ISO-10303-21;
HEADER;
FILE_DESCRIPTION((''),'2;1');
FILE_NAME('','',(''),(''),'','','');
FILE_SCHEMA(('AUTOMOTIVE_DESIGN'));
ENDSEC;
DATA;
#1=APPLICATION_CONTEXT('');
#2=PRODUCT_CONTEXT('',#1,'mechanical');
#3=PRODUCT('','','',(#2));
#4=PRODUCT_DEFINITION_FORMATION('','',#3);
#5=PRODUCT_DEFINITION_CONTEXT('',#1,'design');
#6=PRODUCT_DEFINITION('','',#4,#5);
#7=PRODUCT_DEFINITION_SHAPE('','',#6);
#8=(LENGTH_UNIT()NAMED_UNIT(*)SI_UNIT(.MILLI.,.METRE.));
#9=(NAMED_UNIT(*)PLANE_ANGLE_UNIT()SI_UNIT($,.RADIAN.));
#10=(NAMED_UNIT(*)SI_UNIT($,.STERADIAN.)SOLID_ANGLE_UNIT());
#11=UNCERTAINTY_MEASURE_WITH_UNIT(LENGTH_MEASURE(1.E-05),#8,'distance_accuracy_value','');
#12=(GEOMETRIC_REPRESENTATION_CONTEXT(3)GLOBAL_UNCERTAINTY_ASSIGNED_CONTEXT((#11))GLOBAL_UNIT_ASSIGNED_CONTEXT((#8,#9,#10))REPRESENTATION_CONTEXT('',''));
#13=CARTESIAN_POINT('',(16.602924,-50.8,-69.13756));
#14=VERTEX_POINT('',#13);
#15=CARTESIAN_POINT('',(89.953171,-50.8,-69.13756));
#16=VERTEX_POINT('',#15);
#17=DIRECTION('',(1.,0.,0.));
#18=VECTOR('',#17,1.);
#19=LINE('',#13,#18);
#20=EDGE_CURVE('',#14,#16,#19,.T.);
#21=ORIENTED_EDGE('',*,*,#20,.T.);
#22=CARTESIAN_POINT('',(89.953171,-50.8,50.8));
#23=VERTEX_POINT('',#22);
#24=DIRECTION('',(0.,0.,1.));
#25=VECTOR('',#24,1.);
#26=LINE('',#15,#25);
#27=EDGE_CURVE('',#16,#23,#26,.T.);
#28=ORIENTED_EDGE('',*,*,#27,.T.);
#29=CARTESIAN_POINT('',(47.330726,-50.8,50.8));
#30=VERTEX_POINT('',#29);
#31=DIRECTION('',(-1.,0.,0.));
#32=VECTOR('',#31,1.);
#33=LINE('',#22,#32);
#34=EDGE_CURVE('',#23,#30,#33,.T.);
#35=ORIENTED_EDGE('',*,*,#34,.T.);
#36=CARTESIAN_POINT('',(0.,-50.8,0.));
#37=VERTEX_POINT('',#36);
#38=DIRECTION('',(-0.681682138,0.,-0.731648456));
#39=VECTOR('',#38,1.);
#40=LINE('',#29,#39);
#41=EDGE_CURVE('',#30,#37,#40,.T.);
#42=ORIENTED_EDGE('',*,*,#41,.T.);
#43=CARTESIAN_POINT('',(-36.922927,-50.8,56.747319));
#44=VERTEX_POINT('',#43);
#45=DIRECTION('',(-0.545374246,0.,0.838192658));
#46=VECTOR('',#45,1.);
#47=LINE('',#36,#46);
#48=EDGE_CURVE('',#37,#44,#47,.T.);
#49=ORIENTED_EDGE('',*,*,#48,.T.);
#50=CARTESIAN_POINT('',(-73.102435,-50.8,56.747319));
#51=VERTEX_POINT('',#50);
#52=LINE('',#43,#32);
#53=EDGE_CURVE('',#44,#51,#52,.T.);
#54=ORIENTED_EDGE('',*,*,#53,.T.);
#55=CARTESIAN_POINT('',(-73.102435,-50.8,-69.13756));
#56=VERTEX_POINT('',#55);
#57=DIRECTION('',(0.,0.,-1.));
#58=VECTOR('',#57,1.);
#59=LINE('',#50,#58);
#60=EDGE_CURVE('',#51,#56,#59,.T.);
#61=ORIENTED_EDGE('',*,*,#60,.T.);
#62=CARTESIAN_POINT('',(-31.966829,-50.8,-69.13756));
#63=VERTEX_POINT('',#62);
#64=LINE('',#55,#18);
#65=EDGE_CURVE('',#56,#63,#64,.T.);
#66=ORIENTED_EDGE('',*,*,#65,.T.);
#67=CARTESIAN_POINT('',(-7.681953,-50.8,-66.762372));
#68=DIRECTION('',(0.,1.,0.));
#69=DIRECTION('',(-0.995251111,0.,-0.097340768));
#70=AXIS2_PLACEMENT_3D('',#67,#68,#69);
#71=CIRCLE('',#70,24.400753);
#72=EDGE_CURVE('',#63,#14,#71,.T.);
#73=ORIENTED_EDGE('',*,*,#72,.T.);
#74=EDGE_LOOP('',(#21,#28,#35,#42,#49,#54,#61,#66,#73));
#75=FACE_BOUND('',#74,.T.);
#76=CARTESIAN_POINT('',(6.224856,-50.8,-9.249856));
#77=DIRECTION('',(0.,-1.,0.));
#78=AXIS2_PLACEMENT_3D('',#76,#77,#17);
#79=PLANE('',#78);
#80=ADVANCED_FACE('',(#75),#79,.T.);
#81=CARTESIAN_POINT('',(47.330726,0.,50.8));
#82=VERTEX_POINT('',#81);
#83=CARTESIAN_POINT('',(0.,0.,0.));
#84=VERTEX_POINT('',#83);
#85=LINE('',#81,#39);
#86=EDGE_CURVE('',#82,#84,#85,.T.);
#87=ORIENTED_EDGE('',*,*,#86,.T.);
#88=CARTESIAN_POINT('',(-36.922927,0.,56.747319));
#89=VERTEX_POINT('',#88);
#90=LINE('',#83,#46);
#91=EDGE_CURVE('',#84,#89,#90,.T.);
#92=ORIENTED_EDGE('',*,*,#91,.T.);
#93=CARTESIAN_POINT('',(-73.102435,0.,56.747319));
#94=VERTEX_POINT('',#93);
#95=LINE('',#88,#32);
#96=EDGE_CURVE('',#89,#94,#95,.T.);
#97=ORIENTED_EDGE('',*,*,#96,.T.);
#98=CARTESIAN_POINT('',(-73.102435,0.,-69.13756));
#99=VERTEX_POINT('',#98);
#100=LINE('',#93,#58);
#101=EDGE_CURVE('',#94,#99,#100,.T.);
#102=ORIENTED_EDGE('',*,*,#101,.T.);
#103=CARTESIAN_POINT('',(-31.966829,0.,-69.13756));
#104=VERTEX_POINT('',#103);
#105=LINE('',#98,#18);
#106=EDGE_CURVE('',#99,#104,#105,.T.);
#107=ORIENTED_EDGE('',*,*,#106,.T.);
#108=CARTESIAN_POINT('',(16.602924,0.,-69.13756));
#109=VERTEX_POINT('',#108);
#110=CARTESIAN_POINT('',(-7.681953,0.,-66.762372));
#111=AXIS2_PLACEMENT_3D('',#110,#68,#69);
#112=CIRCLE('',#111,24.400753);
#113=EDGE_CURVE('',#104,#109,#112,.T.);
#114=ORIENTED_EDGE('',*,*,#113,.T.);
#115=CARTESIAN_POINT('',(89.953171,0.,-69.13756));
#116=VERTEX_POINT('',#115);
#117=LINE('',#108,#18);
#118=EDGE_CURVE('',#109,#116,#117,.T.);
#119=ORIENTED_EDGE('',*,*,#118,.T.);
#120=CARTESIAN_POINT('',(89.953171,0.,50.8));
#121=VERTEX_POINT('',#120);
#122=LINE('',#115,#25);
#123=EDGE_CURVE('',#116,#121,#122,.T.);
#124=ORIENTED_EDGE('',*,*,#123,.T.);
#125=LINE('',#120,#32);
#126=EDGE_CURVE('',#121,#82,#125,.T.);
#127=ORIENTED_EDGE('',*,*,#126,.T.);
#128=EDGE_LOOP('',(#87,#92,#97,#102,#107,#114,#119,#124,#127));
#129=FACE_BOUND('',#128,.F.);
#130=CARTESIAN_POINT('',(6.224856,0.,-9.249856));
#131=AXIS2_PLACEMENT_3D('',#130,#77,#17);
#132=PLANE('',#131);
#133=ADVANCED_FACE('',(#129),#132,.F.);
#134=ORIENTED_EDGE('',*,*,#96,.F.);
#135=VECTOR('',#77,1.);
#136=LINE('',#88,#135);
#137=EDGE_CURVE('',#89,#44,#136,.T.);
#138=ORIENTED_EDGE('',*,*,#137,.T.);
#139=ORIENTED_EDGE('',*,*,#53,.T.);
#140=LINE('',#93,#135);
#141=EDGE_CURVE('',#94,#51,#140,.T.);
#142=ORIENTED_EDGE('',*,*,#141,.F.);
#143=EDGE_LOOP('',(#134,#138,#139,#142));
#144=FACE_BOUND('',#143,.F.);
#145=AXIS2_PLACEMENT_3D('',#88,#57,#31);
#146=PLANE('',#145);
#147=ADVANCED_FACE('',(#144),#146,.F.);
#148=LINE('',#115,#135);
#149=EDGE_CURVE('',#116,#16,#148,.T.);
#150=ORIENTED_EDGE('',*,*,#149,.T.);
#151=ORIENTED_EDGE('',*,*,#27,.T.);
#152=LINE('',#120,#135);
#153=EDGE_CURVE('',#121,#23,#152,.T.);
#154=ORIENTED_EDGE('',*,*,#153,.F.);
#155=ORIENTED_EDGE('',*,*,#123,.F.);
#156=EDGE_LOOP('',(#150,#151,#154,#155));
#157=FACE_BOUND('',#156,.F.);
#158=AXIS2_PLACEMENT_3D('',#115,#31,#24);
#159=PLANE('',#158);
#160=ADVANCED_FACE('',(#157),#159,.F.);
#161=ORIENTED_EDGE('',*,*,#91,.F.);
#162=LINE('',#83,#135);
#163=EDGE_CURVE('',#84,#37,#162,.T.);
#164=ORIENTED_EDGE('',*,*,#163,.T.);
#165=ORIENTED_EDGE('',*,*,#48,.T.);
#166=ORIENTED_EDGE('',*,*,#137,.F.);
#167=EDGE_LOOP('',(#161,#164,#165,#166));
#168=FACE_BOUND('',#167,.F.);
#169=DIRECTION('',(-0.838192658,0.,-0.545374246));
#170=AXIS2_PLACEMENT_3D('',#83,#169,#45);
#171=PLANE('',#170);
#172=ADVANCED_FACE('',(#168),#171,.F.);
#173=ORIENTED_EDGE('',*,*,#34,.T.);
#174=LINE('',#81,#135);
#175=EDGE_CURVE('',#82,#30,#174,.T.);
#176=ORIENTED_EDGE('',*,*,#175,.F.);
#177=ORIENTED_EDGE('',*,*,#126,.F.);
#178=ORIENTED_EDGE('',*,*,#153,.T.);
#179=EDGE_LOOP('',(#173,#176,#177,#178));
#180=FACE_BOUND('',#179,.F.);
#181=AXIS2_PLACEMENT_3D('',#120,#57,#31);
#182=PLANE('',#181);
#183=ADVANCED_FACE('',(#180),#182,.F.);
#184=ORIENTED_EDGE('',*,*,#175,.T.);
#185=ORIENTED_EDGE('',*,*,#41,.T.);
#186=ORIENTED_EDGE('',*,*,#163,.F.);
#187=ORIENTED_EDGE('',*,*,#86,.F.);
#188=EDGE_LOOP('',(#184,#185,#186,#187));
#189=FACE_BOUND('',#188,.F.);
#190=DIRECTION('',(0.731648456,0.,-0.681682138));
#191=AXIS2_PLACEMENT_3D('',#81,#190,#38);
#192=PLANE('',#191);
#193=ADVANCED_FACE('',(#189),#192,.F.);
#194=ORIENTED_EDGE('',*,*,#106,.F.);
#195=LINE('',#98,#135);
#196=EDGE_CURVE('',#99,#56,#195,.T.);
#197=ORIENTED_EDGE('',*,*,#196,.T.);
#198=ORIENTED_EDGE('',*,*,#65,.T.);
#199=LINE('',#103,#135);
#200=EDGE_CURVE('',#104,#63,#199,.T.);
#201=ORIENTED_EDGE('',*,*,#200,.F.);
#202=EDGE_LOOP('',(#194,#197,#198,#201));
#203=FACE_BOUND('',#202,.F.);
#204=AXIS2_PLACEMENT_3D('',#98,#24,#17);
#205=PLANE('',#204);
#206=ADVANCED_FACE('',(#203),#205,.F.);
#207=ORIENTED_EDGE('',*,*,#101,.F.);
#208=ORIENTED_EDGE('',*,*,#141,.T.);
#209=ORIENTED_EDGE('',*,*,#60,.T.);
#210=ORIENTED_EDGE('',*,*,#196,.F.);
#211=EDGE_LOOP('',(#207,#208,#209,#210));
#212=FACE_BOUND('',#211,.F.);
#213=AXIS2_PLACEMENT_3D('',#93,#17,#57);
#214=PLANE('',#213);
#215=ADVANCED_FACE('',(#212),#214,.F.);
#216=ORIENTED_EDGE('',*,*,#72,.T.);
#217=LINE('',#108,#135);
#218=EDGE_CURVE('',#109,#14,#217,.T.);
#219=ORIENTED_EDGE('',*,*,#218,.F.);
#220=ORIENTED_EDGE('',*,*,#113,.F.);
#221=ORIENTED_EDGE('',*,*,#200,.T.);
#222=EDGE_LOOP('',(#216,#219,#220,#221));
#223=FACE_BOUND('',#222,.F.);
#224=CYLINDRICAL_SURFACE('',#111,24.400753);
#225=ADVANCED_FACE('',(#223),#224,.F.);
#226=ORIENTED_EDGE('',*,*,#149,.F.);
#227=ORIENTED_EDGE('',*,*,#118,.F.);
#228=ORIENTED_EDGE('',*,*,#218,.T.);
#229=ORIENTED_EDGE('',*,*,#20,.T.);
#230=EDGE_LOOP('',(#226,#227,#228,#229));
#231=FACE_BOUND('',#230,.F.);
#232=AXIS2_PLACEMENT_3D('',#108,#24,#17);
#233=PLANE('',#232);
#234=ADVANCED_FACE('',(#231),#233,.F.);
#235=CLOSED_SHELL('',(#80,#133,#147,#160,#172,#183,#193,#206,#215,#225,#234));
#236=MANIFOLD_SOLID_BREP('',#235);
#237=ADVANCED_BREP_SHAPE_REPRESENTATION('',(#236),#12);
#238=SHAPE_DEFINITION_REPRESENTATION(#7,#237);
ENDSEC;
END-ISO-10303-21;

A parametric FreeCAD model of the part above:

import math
import FreeCAD as App
import Part
import Sketcher
Q = App.Units.Quantity

doc = App.newDocument("Part")
body = doc.addObject("PartDesign::Body", "Body")

# Sketch on XZ plane
sketch1 = doc.addObject("Sketcher::SketchObject", "Sketch")
body.addObject(sketch1)
sketch1.AttachmentSupport = (doc.XZ_Plane, [""])
sketch1.MapMode = "FlatFace"
sketch1.addGeometry(Part.LineSegment(App.Vector(47, 51, 0), App.Vector(0, 0, 0)), False)
sketch1.addGeometry(Part.LineSegment(App.Vector(0, 0, 0), App.Vector(-37, 57, 0)), False)
sketch1.addGeometry(Part.LineSegment(App.Vector(-37, 57, 0), App.Vector(-73, 57, 0)), False)
sketch1.addGeometry(Part.LineSegment(App.Vector(-73, 57, 0), App.Vector(-73, -69, 0)), False)
sketch1.addGeometry(Part.LineSegment(App.Vector(-73, -69, 0), App.Vector(-32, -69, 0)), False)
sketch1.addGeometry(Part.ArcOfCircle(Part.Circle(App.Vector(-8, -67, 0), App.Vector(0, 0, 1), 24), math.radians(-6), math.radians(186)), False)
sketch1.addGeometry(Part.LineSegment(App.Vector(17, -69, 0), App.Vector(90, -69, 0)), False)
sketch1.addGeometry(Part.LineSegment(App.Vector(90, -69, 0), App.Vector(90, 51, 0)), False)
sketch1.addGeometry(Part.LineSegment(App.Vector(90, 51, 0), App.Vector(47, 51, 0)), False)
sketch1.addConstraint(Sketcher.Constraint("Coincident", 0, 2, 1, 1))
sketch1.addConstraint(Sketcher.Constraint("Coincident", 1, 2, 2, 1))
sketch1.addConstraint(Sketcher.Constraint("Coincident", 2, 2, 3, 1))
sketch1.addConstraint(Sketcher.Constraint("Coincident", 3, 2, 4, 1))
sketch1.addConstraint(Sketcher.Constraint("Coincident", 4, 2, 5, 2))
sketch1.addConstraint(Sketcher.Constraint("Coincident", 5, 1, 6, 1))
sketch1.addConstraint(Sketcher.Constraint("Coincident", 6, 2, 7, 1))
sketch1.addConstraint(Sketcher.Constraint("Coincident", 7, 2, 8, 1))
sketch1.addConstraint(Sketcher.Constraint("Coincident", 8, 2, 0, 1))
sketch1.addConstraint(Sketcher.Constraint("Horizontal", 2))
sketch1.addConstraint(Sketcher.Constraint("Vertical", 3))
sketch1.addConstraint(Sketcher.Constraint("Horizontal", 4))
sketch1.addConstraint(Sketcher.Constraint("Horizontal", 6))
sketch1.addConstraint(Sketcher.Constraint("Vertical", 7))
sketch1.addConstraint(Sketcher.Constraint("Horizontal", 8))
sketch1.addConstraint(Sketcher.Constraint("Coincident", 0, 2, -1, 1))
sketch1.addConstraint(Sketcher.Constraint("Horizontal", 4, 2, 5, 1))
sketch1.addConstraint(Sketcher.Constraint("DistanceY", -1, 1, 7, 2, Q("2 in")))
sketch1.addConstraint(Sketcher.Constraint("DistanceX", 4, 2, 6, 2, Q("4.8 in")))
sketch1.addConstraint(Sketcher.Constraint("Radius", 5, Q("24.400753 mm")))
sketch1.addConstraint(Sketcher.Constraint("Distance", 1, Q("67.702 mm")))
sketch1.addConstraint(Sketcher.Constraint("DistanceY", 3, 2, 3, 1, Q("125.884879 mm")))
sketch1.addConstraint(Sketcher.Constraint("DistanceY", 7, 1, 7, 2, Q("119.93756 mm")))
sketch1.addConstraint(Sketcher.Constraint("DistanceX", 1, 2, 4, 2, Q("4.956098 mm")))
sketch1.addConstraint(Sketcher.Constraint("DistanceX", 5, 1, 8, 2, Q("30.727802 mm")))
sketch1.addConstraint(Sketcher.Constraint("DistanceX", 2, 2, 2, 1, Q("36.179508 mm")))
sketch1.addConstraint(Sketcher.Constraint("DistanceX", 6, 1, 6, 2, Q("73.350247 mm")))
pad1 = doc.addObject("PartDesign::Pad", "Pad")
body.addObject(pad1)
pad1.Profile = sketch1
pad1.Length = Q("2 in")

doc.recompute()
